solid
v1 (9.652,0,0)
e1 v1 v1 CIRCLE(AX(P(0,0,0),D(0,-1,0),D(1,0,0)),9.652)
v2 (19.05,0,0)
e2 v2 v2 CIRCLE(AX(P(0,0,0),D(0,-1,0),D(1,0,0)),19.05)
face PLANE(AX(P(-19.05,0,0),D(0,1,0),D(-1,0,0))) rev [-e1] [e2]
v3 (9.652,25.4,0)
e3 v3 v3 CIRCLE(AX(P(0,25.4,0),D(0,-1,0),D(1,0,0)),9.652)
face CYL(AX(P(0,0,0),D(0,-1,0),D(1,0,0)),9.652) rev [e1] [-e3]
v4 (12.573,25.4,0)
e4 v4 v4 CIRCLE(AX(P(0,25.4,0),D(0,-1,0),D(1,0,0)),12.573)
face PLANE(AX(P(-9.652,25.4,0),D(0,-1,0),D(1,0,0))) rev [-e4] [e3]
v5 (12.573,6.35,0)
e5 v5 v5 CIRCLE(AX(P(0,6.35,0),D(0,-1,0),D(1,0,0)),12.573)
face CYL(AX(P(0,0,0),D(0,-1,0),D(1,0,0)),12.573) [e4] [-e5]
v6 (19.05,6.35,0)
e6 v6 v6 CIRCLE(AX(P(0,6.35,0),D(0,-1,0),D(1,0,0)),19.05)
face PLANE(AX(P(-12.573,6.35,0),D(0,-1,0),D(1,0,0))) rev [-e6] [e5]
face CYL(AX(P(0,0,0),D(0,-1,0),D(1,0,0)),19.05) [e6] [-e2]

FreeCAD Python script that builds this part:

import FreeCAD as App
import Part
import Sketcher
Q = App.Units.Quantity


def add_polygon(sketch, points):
    """Adds a closed chain of lines whose ends are joined by coincident constraints."""
    first, n = sketch.GeometryCount, len(points)
    for a, b in zip(points, points[1:] + points[:1]):
        sketch.addGeometry(Part.LineSegment(App.Vector(*a, 0), App.Vector(*b, 0)), False)
    for i in range(n):
        sketch.addConstraint(Sketcher.Constraint("Coincident", first + i, 2, first + (i + 1) % n, 1))

doc = App.newDocument("Part")
body = doc.addObject("PartDesign::Body", "Body")

sketch1 = doc.addObject("Sketcher::SketchObject", "Sketch")
body.addObject(sketch1)
sketch1.AttachmentSupport = (doc.XY_Plane, [""])
sketch1.MapMode = "FlatFace"
add_polygon(sketch1, [(-9.7, 0), (-9.7, 25.4), (-12.6, 25.4), (-12.6, 6.3), (-19.1, 6.3), (-19.1, 0)])
sketch1.addConstraint([
    Sketcher.Constraint("Vertical", 0),
    Sketcher.Constraint("Horizontal", 1),
    Sketcher.Constraint("Vertical", 2),
    Sketcher.Constraint("Horizontal", 3),
    Sketcher.Constraint("Vertical", 4),
    Sketcher.Constraint("Horizontal", 5),
    Sketcher.Constraint("PointOnObject", 4, 2, -1),
    Sketcher.Constraint("DistanceY", 0, 1, 0, 2, Q("1 in")),
    Sketcher.Constraint("DistanceX", 5, 1, 5, 2, Q("0.37 in")),
    Sketcher.Constraint("DistanceY", 2, 2, 2, 1, Q("0.75 in")),
    Sketcher.Constraint("DistanceX", 1, 2, 1, 1, Q("0.115 in")),
    Sketcher.Constraint("DistanceX", 0, 2, -1, 1, Q("0.38 in")),
])
revolution = doc.addObject("PartDesign::Revolution", "Revolution")
body.addObject(revolution)
revolution.Profile = sketch1
revolution.ReferenceAxis = (sketch1, ["V_Axis"])
revolution.Angle = 360

doc.recompute()
